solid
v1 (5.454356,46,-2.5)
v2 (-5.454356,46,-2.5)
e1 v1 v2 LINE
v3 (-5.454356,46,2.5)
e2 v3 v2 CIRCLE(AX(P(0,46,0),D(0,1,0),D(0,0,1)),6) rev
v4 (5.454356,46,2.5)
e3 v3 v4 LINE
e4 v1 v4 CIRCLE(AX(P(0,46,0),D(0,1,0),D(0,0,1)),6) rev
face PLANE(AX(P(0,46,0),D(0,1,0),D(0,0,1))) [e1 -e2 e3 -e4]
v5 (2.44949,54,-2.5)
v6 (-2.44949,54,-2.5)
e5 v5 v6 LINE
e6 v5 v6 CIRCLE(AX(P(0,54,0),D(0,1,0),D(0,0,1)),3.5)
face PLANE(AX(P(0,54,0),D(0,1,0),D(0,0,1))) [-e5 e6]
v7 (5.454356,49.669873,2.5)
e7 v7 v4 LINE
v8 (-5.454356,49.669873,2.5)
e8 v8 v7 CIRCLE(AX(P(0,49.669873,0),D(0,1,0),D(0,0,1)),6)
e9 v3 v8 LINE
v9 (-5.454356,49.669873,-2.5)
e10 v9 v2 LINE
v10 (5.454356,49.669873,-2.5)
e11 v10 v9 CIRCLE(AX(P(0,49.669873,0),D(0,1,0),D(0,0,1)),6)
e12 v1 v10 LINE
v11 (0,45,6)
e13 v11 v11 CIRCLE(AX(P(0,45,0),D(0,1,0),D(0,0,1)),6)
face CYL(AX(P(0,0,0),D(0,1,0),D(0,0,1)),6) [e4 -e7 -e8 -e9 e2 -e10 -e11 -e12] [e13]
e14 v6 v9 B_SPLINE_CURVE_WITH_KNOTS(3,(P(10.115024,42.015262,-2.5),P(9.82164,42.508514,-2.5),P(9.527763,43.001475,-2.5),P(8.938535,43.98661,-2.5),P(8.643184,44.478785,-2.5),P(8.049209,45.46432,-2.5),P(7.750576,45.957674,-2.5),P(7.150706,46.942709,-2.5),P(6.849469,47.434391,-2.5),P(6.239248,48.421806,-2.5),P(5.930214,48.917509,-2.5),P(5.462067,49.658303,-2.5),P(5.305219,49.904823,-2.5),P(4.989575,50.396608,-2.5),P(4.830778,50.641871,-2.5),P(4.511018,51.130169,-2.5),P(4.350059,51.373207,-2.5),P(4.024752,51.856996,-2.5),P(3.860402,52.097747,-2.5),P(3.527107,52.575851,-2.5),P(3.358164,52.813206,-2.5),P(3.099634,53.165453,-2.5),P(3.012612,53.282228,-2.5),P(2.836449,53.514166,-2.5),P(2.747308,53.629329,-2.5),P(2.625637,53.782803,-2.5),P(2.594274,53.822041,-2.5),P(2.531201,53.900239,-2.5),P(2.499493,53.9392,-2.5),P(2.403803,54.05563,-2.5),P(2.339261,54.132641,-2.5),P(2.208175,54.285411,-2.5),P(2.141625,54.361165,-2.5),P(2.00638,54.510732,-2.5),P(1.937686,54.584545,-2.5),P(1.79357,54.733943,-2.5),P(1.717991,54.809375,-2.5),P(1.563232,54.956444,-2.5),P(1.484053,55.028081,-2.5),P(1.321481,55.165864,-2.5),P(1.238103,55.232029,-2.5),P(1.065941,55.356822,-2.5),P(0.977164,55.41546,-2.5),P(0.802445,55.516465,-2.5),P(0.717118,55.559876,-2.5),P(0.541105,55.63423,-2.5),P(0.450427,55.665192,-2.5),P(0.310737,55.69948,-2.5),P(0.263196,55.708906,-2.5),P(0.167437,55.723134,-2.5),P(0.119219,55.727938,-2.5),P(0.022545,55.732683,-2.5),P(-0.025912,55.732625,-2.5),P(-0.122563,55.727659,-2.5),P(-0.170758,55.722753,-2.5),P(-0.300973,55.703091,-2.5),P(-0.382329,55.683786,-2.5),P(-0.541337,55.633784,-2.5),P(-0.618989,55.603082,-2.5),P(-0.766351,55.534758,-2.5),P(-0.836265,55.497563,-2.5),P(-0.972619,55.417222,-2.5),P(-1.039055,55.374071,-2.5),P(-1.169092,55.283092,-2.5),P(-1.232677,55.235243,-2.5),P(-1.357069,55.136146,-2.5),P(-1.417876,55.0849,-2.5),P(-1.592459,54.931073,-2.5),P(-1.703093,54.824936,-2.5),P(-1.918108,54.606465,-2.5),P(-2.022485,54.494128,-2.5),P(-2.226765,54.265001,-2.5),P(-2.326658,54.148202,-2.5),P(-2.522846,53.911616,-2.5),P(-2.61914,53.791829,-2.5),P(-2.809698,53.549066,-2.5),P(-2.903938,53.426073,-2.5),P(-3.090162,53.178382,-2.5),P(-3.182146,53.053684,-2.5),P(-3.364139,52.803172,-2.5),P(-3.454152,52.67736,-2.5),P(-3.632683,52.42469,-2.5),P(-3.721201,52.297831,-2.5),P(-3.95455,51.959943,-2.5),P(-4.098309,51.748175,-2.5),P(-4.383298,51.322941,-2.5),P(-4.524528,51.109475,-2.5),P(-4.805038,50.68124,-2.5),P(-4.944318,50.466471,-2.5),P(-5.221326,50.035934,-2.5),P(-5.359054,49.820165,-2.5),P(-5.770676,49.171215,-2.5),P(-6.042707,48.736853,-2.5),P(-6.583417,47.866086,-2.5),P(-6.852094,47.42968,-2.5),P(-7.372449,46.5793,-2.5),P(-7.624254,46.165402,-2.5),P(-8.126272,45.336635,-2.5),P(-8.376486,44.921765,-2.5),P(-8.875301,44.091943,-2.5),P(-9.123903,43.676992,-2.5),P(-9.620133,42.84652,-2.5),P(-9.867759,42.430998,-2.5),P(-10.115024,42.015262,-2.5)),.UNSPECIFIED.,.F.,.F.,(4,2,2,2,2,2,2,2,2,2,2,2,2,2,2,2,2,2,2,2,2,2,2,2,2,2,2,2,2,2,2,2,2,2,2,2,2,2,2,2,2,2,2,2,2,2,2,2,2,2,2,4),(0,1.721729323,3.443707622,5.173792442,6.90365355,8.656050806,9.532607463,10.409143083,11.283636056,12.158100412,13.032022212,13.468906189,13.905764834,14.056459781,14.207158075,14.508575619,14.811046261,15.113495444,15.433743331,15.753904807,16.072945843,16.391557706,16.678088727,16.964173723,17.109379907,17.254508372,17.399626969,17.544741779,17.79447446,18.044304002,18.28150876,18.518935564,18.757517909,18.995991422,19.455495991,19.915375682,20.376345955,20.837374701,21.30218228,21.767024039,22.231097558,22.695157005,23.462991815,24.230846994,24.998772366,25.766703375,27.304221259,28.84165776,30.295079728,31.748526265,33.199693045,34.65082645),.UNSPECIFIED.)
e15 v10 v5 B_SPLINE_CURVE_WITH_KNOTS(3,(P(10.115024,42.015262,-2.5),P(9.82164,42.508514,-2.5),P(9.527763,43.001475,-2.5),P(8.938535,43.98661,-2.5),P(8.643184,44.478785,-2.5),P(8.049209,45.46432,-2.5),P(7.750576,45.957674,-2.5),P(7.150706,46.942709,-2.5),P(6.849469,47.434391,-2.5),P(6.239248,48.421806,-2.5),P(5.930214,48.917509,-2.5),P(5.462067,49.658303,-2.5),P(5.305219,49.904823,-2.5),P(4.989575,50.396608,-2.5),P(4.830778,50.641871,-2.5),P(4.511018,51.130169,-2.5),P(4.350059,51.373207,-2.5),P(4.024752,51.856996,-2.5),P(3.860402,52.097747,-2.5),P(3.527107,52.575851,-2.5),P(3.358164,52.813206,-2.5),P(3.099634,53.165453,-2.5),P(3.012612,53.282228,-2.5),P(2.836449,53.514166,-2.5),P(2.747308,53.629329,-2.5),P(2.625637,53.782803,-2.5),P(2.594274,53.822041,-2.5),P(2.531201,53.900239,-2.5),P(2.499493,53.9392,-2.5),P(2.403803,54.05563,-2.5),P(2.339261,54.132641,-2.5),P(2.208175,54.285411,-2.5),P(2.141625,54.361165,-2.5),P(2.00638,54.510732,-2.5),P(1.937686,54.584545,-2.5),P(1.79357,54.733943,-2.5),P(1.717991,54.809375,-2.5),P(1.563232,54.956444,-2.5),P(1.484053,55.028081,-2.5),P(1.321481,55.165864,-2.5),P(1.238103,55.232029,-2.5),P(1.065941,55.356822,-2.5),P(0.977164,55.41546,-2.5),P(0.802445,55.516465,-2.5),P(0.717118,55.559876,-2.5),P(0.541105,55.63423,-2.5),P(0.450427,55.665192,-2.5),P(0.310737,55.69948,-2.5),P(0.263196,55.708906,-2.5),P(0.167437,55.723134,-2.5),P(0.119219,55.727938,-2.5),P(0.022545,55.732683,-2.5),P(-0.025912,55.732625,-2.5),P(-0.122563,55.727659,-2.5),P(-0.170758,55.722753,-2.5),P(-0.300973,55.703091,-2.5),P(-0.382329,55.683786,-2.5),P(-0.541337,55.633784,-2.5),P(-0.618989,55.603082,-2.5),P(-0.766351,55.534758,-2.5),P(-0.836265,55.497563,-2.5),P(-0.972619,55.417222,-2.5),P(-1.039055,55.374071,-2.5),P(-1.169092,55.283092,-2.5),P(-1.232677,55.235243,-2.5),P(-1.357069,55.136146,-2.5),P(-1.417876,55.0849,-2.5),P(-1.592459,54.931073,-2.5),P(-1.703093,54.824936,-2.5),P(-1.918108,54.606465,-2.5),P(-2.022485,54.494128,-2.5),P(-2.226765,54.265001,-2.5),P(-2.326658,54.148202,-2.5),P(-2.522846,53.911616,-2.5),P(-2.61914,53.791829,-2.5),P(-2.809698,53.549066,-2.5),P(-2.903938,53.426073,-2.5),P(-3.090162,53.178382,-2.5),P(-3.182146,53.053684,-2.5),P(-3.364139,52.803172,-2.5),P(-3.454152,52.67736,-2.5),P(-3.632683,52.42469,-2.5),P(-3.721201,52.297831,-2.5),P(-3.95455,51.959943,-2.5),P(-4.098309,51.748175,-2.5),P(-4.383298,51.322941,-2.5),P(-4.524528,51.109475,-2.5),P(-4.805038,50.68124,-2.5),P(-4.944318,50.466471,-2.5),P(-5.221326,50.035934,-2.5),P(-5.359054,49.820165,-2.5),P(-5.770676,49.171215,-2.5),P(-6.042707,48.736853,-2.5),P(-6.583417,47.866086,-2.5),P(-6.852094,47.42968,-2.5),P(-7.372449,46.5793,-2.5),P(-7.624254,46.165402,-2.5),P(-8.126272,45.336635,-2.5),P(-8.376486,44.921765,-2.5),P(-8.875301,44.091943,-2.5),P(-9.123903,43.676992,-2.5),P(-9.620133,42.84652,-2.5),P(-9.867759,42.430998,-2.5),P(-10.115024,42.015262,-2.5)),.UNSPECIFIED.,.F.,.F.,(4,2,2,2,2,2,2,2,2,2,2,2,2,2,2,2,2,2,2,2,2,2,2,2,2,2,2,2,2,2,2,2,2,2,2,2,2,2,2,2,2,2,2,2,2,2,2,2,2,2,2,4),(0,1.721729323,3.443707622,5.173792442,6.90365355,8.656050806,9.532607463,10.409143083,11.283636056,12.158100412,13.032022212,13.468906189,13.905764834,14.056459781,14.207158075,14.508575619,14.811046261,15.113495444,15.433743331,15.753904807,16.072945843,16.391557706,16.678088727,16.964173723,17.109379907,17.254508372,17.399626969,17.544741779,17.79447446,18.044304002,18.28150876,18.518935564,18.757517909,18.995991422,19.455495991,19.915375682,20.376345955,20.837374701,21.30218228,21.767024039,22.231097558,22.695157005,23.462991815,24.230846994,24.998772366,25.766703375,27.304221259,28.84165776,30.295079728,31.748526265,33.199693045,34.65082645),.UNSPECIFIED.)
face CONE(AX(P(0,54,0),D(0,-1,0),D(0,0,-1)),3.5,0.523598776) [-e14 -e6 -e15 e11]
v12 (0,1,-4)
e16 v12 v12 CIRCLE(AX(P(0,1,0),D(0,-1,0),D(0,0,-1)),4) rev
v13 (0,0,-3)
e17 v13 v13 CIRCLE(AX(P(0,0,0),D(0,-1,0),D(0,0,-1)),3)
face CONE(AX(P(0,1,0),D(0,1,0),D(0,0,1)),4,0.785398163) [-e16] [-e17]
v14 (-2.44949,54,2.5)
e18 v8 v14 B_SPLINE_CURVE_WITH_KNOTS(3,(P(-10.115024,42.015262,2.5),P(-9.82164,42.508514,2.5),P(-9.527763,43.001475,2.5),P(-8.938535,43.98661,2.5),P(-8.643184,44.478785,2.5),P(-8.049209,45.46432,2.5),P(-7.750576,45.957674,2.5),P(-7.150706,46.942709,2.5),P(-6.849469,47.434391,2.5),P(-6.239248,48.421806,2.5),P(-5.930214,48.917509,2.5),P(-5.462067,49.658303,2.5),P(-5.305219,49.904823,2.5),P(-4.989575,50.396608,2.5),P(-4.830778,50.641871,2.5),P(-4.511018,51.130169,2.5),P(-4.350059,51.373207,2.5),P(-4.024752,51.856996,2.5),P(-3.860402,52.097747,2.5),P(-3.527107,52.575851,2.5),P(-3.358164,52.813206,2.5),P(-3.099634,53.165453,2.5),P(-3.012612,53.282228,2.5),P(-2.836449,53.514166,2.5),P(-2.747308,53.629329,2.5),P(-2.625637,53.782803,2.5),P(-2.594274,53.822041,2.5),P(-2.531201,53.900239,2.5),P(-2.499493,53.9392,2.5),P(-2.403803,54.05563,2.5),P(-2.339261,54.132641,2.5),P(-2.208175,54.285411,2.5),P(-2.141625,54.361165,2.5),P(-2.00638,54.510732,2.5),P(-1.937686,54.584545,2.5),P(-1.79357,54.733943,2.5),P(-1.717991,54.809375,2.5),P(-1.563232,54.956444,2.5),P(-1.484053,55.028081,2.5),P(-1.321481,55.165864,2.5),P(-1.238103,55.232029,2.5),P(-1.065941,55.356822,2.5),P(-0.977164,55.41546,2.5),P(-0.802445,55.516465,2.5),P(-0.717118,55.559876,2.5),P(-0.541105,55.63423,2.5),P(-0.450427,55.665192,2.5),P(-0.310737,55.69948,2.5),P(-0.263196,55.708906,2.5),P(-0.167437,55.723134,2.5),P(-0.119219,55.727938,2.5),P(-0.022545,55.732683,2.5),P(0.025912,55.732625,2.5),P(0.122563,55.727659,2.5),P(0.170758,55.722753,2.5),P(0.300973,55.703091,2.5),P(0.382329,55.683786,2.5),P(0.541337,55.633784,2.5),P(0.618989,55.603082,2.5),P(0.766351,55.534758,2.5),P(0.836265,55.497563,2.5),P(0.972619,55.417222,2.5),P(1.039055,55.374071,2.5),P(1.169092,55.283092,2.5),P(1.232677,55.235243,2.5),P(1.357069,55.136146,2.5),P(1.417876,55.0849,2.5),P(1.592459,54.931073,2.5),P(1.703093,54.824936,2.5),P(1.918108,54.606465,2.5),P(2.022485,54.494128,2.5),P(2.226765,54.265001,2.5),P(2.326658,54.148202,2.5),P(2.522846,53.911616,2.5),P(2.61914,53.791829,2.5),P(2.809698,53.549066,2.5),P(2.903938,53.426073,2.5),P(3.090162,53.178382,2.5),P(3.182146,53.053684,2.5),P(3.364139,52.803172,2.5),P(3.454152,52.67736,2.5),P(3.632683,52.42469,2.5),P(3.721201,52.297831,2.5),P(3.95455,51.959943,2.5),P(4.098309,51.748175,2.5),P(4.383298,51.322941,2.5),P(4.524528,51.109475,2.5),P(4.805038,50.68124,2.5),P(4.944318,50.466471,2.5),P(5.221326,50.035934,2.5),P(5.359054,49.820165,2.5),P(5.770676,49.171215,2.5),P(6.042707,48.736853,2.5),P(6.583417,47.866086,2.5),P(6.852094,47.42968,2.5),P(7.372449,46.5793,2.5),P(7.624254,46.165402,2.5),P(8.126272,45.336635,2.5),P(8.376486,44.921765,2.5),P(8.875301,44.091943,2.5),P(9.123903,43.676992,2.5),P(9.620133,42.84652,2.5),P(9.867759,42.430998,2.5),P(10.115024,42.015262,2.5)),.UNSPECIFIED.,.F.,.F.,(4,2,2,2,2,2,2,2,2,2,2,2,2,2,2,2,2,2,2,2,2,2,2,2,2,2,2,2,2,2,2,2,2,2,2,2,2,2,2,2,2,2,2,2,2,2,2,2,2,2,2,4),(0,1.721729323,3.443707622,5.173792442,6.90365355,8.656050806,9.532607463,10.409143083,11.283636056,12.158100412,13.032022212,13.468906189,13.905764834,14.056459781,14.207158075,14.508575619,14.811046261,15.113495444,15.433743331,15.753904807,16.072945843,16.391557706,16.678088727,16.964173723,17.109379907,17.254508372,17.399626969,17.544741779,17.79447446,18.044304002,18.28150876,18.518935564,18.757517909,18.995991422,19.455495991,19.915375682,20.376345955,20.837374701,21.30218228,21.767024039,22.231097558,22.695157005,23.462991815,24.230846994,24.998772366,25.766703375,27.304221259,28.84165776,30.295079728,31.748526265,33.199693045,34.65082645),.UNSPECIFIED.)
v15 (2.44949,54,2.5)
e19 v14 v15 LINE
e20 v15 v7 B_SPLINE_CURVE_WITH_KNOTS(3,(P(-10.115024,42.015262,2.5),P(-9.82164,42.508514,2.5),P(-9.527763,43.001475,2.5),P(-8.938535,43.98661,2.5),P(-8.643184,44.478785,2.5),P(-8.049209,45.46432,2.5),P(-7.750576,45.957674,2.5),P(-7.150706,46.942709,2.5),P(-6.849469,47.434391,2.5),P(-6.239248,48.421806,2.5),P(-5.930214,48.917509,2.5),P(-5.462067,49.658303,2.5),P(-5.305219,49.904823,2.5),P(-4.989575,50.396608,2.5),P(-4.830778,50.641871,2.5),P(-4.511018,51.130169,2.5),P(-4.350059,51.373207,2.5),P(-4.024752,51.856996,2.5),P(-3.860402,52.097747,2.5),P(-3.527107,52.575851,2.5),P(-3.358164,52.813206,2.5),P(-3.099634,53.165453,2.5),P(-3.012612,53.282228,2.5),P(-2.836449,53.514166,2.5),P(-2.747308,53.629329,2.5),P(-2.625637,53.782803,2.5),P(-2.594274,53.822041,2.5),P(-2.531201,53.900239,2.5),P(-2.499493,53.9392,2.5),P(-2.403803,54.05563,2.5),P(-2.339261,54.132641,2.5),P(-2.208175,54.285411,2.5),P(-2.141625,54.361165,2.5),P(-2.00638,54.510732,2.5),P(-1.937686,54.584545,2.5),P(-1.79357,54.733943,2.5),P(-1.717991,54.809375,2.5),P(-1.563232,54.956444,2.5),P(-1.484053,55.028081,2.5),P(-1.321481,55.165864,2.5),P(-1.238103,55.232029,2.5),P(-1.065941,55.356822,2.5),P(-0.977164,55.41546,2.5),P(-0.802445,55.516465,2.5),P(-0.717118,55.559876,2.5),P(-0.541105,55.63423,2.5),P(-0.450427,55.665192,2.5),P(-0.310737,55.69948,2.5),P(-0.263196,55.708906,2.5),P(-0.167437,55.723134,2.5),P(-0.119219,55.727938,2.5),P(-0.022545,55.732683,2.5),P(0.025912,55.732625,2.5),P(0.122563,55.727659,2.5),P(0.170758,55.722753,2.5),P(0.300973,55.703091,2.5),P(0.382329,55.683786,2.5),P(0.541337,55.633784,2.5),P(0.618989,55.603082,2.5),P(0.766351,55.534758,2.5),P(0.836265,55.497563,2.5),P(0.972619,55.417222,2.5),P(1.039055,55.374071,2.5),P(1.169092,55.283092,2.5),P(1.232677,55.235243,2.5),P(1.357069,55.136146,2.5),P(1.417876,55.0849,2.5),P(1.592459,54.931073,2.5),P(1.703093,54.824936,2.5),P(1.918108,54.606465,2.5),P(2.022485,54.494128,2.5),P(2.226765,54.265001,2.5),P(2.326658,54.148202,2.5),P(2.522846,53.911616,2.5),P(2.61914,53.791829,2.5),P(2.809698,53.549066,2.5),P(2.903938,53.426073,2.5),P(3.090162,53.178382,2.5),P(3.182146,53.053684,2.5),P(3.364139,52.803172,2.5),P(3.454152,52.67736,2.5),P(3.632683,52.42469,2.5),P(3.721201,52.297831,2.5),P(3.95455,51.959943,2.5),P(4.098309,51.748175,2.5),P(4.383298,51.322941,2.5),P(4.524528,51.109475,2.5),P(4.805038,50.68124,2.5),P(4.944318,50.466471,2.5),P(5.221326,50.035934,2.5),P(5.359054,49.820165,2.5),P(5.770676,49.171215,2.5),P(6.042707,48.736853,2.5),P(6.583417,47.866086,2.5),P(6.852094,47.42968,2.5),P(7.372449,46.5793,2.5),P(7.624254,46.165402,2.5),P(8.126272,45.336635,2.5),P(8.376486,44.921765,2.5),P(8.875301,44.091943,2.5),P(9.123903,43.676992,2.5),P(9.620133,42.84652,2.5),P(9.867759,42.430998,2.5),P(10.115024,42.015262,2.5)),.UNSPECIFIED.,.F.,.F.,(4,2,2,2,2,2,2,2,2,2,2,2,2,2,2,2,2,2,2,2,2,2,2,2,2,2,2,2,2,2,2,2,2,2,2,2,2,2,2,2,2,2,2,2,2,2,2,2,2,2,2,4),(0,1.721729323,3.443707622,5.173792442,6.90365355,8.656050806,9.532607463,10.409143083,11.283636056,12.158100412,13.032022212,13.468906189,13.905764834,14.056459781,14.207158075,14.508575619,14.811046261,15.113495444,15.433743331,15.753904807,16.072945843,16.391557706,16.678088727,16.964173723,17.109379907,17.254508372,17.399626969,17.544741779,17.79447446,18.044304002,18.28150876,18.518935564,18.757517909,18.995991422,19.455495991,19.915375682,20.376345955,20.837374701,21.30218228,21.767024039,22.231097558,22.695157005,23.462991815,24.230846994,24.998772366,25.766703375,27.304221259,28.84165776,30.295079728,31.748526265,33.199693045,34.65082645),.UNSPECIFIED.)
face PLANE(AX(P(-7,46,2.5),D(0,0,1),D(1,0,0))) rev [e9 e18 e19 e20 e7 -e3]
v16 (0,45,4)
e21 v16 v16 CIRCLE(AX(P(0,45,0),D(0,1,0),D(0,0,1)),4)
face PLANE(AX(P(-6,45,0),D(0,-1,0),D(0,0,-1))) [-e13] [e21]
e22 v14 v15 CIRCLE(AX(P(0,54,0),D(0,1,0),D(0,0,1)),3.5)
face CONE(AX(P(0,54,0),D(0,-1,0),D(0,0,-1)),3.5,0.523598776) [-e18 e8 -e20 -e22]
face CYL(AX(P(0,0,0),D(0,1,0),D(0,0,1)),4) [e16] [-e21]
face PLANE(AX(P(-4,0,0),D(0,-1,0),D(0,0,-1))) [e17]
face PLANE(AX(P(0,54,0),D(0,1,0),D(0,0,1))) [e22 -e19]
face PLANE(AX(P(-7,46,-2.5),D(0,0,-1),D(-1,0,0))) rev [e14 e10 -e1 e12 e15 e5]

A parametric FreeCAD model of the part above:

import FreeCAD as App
import Part
import Sketcher
Q = App.Units.Quantity


def edges_at(feature, points):
    """Names of the edges that pass closest to the given points."""
    edges = feature.Shape.Edges
    near = lambda p: min(range(len(edges)), key=lambda i: edges[i].distToShape(Part.Vertex(*p))[0])
    return sorted({f"Edge{near(p) + 1}" for p in points})


def add_polygon(sketch, points):
    """Adds a closed chain of lines whose ends are joined by coincident constraints."""
    first, n = sketch.GeometryCount, len(points)
    for a, b in zip(points, points[1:] + points[:1]):
        sketch.addGeometry(Part.LineSegment(App.Vector(*a, 0), App.Vector(*b, 0)), False)
    for i in range(n):
        sketch.addConstraint(Sketcher.Constraint("Coincident", first + i, 2, first + (i + 1) % n, 1))

doc = App.newDocument("Part")
body = doc.addObject("PartDesign::Body", "Body")

# Sketch on XY plane
sketch1 = doc.addObject("Sketcher::SketchObject", "Sketch")
body.addObject(sketch1)
sketch1.AttachmentSupport = (doc.XY_Plane, [""])
sketch1.MapMode = "FlatFace"
add_polygon(sketch1, [(0, 0), (0, 54), (-3.5, 54), (-6, 49.7), (-6, 45), (-4, 45), (-4, 0)])  # lines 0-6
sketch1.addConstraint(Sketcher.Constraint("Vertical", 0))
sketch1.addConstraint(Sketcher.Constraint("Horizontal", 1))
sketch1.addConstraint(Sketcher.Constraint("Vertical", 3))
sketch1.addConstraint(Sketcher.Constraint("Horizontal", 4))
sketch1.addConstraint(Sketcher.Constraint("Vertical", 5))
sketch1.addConstraint(Sketcher.Constraint("Horizontal", 6))
sketch1.addConstraint(Sketcher.Constraint("Coincident", 6, 2, -1, 1))
sketch1.addConstraint(Sketcher.Constraint("DistanceX", 4, 1, 4, 2, Q("2 mm")))
sketch1.addConstraint(Sketcher.Constraint("DistanceX", 6, 1, 6, 2, Q("4 mm")))
sketch1.addConstraint(Sketcher.Constraint("DistanceY", 0, 1, 0, 2, Q("54 mm")))
sketch1.addConstraint(Sketcher.Constraint("DistanceY", 5, 2, 5, 1, Q("45 mm")))
sketch1.addConstraint(Sketcher.Constraint("Angle", 2, Q("-120 deg")))
sketch1.addConstraint(Sketcher.Constraint("Distance", 2, Q("5 mm")))
revolution = doc.addObject("PartDesign::Revolution", "Revolution")
body.addObject(revolution)
revolution.Profile = sketch1
revolution.ReferenceAxis = (sketch1, ["V_Axis"])
revolution.Angle = 360

# Sketch on XZ plane
sketch2 = doc.addObject("Sketcher::SketchObject", "Sketch001")
body.addObject(sketch2)
sketch2.AttachmentSupport = (doc.XZ_Plane, [""])
sketch2.MapMode = "FlatFace"
sketch2.AttachmentOffset = App.Placement(App.Vector(0, 0, -54), App.Rotation())
add_polygon(sketch2, [(-7, -2), (-7, 2), (7, 2), (7, -2)])  # lines 0-3
sketch2.addConstraint(Sketcher.Constraint("Vertical", 0))
sketch2.addConstraint(Sketcher.Constraint("Horizontal", 1))
sketch2.addConstraint(Sketcher.Constraint("Vertical", 2))
sketch2.addConstraint(Sketcher.Constraint("Horizontal", 3))
sketch2.addConstraint(Sketcher.Constraint("Symmetric", 0, 2, 2, 2, -1, 1))
sketch2.addConstraint(Sketcher.Constraint("DistanceX", 1, 1, 1, 2, Q("14 mm")))
sketch2.addConstraint(Sketcher.Constraint("DistanceY", 0, 1, 0, 2, Q("5 mm")))
pocket1 = doc.addObject("PartDesign::Pocket", "Pocket")
body.addObject(pocket1)
pocket1.Profile = sketch2
pocket1.Length = 8
pocket1.Reversed = True
doc.recompute()

chamfer = doc.addObject("PartDesign::Chamfer", "Chamfer")
body.addObject(chamfer)
chamfer.Base = (pocket1, edges_at(pocket1, [(0, 0, -4)]))
chamfer.Size = 1

doc.recompute()
